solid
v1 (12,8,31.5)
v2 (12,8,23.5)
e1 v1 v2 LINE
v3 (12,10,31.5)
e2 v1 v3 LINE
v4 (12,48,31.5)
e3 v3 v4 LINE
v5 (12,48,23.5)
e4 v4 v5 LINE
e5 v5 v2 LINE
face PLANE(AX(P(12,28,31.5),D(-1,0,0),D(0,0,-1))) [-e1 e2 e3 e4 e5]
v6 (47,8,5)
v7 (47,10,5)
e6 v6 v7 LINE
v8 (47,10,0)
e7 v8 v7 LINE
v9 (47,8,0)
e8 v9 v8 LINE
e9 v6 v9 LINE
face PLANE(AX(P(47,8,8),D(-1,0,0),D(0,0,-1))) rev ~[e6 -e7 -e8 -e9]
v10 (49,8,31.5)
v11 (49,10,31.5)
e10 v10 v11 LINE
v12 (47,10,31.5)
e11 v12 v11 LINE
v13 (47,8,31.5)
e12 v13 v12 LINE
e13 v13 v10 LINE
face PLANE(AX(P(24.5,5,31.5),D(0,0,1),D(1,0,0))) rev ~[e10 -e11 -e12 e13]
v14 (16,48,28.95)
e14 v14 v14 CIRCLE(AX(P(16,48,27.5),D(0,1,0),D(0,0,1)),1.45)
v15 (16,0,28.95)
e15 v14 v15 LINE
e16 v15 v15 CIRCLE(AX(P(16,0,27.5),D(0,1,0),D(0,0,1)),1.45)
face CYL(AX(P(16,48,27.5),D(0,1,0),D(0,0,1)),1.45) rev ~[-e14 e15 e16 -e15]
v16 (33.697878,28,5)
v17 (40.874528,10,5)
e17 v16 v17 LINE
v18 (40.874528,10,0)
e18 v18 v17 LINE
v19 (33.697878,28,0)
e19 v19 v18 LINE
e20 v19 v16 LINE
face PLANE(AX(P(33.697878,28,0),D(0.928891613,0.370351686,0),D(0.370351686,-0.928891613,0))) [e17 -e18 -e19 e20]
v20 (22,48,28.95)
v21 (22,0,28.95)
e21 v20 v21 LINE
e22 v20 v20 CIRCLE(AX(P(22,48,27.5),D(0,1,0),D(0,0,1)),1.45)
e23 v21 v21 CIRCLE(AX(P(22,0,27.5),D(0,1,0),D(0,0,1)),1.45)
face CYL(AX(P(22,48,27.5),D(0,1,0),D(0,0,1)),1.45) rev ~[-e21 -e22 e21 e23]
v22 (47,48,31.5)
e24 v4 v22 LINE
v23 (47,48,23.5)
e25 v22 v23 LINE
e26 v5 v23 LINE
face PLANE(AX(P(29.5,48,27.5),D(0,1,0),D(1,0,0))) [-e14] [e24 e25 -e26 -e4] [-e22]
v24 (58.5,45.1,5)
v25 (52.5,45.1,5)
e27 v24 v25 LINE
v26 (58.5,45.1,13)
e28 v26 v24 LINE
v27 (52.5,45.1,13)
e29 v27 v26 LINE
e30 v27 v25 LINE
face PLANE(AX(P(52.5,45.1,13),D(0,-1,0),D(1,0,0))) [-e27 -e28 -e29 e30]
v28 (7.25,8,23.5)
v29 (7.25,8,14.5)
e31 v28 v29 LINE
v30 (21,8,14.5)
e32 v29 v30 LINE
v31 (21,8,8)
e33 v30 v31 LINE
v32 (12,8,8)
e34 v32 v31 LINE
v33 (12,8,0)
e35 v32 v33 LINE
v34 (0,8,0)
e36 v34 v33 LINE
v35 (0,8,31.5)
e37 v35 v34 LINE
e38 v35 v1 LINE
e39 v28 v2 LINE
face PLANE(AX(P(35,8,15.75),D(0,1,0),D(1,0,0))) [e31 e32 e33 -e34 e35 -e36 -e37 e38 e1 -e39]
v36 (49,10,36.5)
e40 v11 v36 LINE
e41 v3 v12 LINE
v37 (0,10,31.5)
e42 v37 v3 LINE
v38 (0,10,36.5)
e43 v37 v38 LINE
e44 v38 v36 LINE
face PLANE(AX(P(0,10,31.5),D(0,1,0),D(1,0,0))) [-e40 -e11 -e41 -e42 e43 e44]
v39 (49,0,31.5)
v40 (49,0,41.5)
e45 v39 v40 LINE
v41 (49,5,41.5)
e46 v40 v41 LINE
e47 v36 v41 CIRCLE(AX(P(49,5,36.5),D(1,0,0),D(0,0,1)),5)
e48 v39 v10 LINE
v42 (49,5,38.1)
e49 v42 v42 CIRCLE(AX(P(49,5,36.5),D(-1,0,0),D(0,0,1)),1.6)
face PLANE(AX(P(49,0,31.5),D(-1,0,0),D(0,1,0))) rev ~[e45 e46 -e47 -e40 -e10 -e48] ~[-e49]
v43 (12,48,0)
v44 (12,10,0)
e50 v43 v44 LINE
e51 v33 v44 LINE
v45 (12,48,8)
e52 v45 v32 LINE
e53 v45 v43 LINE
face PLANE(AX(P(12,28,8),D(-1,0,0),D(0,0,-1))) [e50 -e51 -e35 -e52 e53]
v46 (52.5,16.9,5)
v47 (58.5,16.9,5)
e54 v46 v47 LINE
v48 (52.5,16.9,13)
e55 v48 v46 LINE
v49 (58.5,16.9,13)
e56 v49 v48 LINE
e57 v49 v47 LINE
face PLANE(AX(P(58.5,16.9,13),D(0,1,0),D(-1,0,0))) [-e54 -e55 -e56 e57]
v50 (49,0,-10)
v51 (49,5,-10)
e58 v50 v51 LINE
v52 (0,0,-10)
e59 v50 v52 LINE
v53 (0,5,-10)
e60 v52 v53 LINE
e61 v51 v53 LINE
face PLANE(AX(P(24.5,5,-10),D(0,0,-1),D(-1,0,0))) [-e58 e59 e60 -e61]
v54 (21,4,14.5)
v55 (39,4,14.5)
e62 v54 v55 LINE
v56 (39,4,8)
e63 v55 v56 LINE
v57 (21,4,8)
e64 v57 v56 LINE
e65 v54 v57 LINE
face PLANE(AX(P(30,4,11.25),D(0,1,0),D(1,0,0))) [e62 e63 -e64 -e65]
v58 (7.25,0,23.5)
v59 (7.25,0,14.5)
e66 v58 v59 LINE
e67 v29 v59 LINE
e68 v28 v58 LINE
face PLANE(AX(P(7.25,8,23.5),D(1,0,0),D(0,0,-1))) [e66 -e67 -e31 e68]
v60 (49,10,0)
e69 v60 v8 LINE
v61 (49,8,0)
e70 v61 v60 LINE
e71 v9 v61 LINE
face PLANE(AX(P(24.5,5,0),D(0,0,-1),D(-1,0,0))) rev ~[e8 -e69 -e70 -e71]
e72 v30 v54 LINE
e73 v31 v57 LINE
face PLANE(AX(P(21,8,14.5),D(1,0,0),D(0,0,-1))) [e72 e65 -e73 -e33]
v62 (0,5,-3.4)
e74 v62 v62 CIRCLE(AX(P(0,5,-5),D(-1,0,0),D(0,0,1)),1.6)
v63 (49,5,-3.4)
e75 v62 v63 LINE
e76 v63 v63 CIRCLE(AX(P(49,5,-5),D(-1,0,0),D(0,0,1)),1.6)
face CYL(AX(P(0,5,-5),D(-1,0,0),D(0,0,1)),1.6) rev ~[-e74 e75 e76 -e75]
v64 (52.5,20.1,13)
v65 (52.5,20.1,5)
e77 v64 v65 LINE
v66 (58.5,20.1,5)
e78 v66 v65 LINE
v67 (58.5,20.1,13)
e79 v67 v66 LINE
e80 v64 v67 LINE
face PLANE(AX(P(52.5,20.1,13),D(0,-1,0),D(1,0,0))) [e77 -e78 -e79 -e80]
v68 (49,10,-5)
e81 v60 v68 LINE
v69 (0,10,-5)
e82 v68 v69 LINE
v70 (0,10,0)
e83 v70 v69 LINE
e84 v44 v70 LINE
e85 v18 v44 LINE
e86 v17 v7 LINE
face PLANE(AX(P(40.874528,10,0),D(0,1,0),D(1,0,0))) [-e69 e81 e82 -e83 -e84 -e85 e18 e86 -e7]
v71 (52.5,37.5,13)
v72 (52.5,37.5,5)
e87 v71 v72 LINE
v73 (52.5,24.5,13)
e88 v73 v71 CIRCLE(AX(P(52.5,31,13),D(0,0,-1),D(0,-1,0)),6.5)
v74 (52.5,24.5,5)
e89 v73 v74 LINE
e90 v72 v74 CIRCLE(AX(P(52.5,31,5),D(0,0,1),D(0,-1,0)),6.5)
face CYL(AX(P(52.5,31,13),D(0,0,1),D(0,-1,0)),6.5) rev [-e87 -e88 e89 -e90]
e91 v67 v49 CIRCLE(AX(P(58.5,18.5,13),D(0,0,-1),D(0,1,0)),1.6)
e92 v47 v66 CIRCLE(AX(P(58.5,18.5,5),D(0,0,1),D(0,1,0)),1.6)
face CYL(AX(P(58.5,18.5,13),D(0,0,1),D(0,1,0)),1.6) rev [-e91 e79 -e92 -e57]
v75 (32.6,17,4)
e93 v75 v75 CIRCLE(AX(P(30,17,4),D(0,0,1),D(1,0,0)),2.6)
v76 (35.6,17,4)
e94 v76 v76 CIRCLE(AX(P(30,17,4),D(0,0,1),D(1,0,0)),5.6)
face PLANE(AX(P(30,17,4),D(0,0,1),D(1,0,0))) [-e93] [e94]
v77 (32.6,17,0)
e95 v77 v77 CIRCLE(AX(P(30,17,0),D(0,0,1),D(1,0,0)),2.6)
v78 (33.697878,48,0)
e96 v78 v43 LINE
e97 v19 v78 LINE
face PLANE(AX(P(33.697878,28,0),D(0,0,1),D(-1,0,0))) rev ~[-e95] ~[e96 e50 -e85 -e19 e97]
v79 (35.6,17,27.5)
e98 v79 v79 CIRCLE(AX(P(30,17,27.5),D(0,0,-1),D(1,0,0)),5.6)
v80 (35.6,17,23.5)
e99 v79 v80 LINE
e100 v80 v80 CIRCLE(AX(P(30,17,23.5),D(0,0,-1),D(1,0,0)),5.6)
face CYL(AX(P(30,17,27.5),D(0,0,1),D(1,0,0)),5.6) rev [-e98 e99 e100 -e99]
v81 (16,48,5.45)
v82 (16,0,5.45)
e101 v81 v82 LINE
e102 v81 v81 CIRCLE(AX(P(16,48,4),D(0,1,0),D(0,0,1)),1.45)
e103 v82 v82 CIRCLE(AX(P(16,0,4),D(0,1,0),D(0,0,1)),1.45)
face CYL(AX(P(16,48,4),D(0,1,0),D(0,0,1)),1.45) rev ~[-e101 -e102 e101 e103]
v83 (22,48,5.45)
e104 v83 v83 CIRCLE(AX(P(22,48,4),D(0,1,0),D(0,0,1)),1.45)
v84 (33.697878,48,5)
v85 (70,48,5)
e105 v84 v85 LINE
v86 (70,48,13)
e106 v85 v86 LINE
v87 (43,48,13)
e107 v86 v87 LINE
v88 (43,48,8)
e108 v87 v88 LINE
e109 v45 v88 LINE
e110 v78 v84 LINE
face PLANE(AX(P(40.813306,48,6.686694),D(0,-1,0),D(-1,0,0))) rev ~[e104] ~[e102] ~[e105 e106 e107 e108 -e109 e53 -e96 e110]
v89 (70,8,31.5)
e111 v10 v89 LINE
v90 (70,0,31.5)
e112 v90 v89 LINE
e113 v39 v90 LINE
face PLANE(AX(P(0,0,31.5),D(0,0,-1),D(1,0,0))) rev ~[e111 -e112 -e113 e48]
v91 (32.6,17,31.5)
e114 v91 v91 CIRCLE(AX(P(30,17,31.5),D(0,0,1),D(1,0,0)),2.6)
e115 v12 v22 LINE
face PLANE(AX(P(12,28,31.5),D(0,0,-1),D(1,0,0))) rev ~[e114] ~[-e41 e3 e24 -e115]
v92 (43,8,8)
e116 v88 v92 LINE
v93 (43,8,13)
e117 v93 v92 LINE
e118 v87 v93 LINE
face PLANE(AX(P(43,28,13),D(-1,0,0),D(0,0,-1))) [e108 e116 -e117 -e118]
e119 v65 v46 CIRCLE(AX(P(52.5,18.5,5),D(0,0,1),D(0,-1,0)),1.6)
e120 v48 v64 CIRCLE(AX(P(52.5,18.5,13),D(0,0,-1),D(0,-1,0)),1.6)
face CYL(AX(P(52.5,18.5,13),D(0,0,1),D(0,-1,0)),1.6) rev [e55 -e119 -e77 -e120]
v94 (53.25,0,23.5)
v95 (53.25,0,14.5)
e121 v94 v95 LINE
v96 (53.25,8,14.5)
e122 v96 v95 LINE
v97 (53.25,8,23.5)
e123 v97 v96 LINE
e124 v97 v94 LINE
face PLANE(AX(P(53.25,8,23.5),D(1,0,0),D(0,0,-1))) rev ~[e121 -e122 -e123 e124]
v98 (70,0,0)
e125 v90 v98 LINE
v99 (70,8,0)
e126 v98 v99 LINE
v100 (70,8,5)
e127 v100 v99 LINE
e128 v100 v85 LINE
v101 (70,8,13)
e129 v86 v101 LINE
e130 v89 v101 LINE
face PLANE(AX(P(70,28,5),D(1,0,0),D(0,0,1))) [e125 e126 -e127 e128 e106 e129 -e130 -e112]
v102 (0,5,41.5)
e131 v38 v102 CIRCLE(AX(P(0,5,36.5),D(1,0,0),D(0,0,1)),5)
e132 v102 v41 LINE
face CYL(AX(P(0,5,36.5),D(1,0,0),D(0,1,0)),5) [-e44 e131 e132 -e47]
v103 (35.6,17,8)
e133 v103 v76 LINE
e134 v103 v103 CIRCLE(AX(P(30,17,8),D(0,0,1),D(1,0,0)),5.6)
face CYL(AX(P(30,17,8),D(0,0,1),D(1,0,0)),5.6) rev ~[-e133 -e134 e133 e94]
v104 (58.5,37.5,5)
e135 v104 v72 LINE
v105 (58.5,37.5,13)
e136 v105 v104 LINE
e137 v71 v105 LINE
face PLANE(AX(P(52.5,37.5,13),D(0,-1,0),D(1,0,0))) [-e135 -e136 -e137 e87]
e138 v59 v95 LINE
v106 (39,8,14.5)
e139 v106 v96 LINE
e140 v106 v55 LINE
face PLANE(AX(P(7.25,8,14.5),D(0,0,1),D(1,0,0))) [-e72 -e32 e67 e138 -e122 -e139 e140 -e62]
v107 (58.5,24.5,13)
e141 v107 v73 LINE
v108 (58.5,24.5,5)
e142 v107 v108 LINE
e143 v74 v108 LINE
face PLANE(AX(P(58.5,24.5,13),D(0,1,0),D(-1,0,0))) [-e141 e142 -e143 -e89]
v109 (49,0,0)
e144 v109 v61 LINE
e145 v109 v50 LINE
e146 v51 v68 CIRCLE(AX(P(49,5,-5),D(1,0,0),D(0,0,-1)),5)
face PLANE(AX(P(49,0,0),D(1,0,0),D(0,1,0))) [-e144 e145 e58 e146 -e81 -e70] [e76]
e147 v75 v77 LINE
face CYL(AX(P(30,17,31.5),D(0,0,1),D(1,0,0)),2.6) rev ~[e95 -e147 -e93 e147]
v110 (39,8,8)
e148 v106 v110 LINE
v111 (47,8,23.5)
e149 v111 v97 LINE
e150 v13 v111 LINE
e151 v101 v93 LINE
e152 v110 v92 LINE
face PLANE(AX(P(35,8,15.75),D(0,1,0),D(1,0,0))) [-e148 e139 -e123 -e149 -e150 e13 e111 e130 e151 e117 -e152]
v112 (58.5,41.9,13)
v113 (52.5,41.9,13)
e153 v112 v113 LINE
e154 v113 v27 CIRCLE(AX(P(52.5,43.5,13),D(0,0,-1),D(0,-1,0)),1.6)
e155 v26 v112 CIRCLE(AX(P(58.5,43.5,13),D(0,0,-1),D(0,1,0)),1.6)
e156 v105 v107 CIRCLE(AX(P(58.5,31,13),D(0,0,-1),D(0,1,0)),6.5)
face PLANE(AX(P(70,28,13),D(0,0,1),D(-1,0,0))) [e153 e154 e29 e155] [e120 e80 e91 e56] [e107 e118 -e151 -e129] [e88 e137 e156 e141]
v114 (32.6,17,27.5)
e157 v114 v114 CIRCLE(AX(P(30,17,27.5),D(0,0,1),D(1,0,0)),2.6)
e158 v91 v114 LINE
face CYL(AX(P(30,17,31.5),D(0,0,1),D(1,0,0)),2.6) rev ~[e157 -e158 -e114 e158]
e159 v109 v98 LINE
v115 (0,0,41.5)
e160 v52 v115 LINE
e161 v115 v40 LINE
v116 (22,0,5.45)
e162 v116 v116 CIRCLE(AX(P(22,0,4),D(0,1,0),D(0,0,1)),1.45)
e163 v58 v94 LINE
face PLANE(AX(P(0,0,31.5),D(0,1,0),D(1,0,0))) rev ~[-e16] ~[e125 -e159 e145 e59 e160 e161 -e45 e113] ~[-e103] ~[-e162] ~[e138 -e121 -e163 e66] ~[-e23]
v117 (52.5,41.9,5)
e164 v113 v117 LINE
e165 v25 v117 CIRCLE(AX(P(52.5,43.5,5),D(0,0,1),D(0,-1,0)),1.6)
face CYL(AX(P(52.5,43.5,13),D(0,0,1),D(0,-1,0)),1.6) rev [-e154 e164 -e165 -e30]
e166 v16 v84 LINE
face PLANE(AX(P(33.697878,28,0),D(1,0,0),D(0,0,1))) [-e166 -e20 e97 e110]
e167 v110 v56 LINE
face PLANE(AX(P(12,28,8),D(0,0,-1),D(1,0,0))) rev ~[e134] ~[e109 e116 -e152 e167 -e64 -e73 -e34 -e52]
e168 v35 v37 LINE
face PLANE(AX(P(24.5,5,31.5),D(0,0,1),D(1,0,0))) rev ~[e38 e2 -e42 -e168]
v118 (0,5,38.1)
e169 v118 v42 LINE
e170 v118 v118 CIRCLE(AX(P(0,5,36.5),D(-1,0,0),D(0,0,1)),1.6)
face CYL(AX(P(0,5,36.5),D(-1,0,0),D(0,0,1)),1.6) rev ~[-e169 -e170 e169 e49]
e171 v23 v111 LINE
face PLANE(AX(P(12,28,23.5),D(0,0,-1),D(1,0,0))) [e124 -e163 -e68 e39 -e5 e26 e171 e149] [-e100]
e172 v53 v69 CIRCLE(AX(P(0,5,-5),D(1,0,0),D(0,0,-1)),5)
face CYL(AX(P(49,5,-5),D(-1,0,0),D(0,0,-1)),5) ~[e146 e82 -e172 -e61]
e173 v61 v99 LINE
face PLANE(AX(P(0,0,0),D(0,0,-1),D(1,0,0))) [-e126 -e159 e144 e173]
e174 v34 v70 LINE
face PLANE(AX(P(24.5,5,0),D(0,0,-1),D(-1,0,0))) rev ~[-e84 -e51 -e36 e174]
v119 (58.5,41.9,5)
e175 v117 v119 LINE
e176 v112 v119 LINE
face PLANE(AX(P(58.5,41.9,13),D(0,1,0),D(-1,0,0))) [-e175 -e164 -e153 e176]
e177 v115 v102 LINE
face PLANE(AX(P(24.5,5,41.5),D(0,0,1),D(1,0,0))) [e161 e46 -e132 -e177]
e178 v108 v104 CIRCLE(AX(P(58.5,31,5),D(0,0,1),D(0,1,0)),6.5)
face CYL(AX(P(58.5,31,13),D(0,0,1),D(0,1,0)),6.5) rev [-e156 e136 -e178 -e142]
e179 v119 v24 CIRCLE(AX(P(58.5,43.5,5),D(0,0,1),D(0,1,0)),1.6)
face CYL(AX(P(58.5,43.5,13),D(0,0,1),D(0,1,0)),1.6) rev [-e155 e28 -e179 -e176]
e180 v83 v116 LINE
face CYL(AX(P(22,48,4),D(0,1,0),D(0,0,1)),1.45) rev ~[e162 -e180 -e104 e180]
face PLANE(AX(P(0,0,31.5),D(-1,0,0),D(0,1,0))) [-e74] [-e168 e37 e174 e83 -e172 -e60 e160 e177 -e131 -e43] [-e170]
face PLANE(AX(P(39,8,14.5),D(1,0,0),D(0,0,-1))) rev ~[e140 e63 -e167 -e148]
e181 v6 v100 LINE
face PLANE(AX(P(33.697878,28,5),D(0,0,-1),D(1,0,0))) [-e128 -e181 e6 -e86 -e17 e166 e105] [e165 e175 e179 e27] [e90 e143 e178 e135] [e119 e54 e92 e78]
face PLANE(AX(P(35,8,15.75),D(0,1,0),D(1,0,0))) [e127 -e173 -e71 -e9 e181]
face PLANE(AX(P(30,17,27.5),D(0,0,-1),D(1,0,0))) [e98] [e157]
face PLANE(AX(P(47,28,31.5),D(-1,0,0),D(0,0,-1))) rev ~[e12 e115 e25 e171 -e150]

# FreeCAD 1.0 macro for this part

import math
import FreeCAD as App
import Part
import Sketcher
from FreeCAD import Vector
Q = App.Units.Quantity


def edges_at(feature, points):
    """Names of the edges that pass closest to the given points."""
    edges = feature.Shape.Edges
    near = lambda p: min(range(len(edges)), key=lambda i: edges[i].distToShape(Part.Vertex(*p))[0])
    return sorted({f"Edge{near(p) + 1}" for p in points})

doc = App.newDocument("Part")
params = doc.addObject("Spreadsheet::Sheet", "Params")
for row, (alias, value) in enumerate([
    ("sketch1_width", "70 mm"),
    ("sketch1_height", "31.5 mm"),
    ("pad1_length", "8 mm"),
    ("sketch2_width", "35 mm"),
    ("sketch2_height", "8 mm"),
    ("pad2_length", "20 mm"),
    ("sketch3_diameter", "5.2 mm"),
    ("sketch4_width", "49 mm"),
    ("sketch4_height", "10 mm"),
    ("pad3_length", "10 mm"),
    ("sketch5_diameter", "3.2 mm"),
    ("sketch6_width", "46 mm"),
    ("sketch6_height", "9 mm"),
    ("sketch7_diameter", "11.2 mm"),
    ("pocket4_length", "4 mm"),
    ("sketch8_diameter", "11.2 mm"),
    ("pocket5_length", "4 mm"),
    ("sketch9_width", "18 mm"),
    ("sketch9_height", "6.5 mm"),
    ("pocket6_length", "4 mm"),
    ("sketch10_width", "27 mm"),
    ("sketch10_width2", "23 mm"),
    ("sketch10_height", "8 mm"),
    ("sketch10_height2", "3 mm"),
    ("pad4_length", "20 mm"),
    ("sketch11_height", "18 mm"),
    ("pocket7_length", "5 mm"),
    ("sketch12_width", "31 mm"),
    ("sketch12_width2", "27 mm"),
    ("sketch12_height", "8 mm"),
    ("sketch12_height2", "5 mm"),
    ("pad5_length", "20 mm"),
    ("sketch13_radius", "6.5 mm"),
    ("sketch13_radius2", "1.6 mm"),
    ("sketch13_width", "6 mm"),
    ("sketch14_width", "49 mm"),
    ("sketch14_height", "10 mm"),
    ("pad6_length", "10 mm"),
    ("sketch15_diameter", "3.2 mm"),
    ("sketch16_width", "35 mm"),
    ("sketch16_height", "8 mm"),
    ("pad7_length", "20 mm"),
    ("sketch17_diameter", "2.9 mm"),
    ("fillet_radius", "5 mm"),
], start=1):
    params.set(f"A{row}", alias)
    params.set(f"B{row}", "=" + value)
    params.setAlias(f"B{row}", alias)

body = doc.addObject("PartDesign::Body", "Body")

# Sketch on XZ plane
sketch1 = body.newObject("Sketcher::SketchObject", "Sketch")
sketch1.AttachmentSupport = (doc.getObject("XZ_Plane"), [""])
sketch1.MapMode = "FlatFace"
sketch1.addGeometry(Part.LineSegment(Vector(0, 0, 0), Vector(0, 32, 0)), False)
sketch1.addGeometry(Part.LineSegment(Vector(0, 32, 0), Vector(70, 32, 0)), False)
sketch1.addGeometry(Part.LineSegment(Vector(70, 32, 0), Vector(70, 0, 0)), False)
sketch1.addGeometry(Part.LineSegment(Vector(70, 0, 0), Vector(0, 0, 0)), False)
sketch1.addConstraint(Sketcher.Constraint("Coincident", 0, 2, 1, 1))
sketch1.addConstraint(Sketcher.Constraint("Coincident", 1, 2, 2, 1))
sketch1.addConstraint(Sketcher.Constraint("Coincident", 2, 2, 3, 1))
sketch1.addConstraint(Sketcher.Constraint("Coincident", 3, 2, 0, 1))
sketch1.addConstraint(Sketcher.Constraint("Vertical", 0))
sketch1.addConstraint(Sketcher.Constraint("Horizontal", 1))
sketch1.addConstraint(Sketcher.Constraint("Vertical", 2))
sketch1.addConstraint(Sketcher.Constraint("Horizontal", 3))
sketch1.addConstraint(Sketcher.Constraint("Coincident", 3, 2, -1, 1))
sketch1.addConstraint(Sketcher.Constraint("DistanceX", 1, 1, 1, 2, Q("70 mm")))
sketch1.addConstraint(Sketcher.Constraint("DistanceY", 0, 1, 0, 2, Q("31.5 mm")))
sketch1.setExpression("Constraints[9]", "Params.sketch1_width")
sketch1.setExpression("Constraints[10]", "Params.sketch1_height")
pad1 = body.newObject("PartDesign::Pad", "Pad")
pad1.Profile = sketch1
pad1.setExpression("Length", "Params.pad1_length")
pad1.Reversed = True

# Sketch on XZ plane
sketch2 = body.newObject("Sketcher::SketchObject", "Sketch001")
sketch2.AttachmentSupport = (doc.getObject("XZ_Plane"), [""])
sketch2.MapMode = "FlatFace"
sketch2.AttachmentOffset = App.Placement(Vector(0, 0, -8), App.Rotation())
sketch2.addGeometry(Part.LineSegment(Vector(12, 24, 0), Vector(12, 32, 0)), False)
sketch2.addGeometry(Part.LineSegment(Vector(12, 32, 0), Vector(47, 32, 0)), False)
sketch2.addGeometry(Part.LineSegment(Vector(47, 32, 0), Vector(47, 24, 0)), False)
sketch2.addGeometry(Part.LineSegment(Vector(47, 24, 0), Vector(12, 24, 0)), False)
sketch2.addGeometry(Part.LineSegment(Vector(12, 0, 0), Vector(12, 8, 0)), False)
sketch2.addGeometry(Part.LineSegment(Vector(12, 8, 0), Vector(47, 8, 0)), False)
sketch2.addGeometry(Part.LineSegment(Vector(47, 8, 0), Vector(47, 0, 0)), False)
sketch2.addGeometry(Part.LineSegment(Vector(47, 0, 0), Vector(12, 0, 0)), False)
sketch2.addConstraint(Sketcher.Constraint("Coincident", 0, 2, 1, 1))
sketch2.addConstraint(Sketcher.Constraint("Coincident", 1, 2, 2, 1))
sketch2.addConstraint(Sketcher.Constraint("Coincident", 2, 2, 3, 1))
sketch2.addConstraint(Sketcher.Constraint("Coincident", 3, 2, 0, 1))
sketch2.addConstraint(Sketcher.Constraint("Coincident", 4, 2, 5, 1))
sketch2.addConstraint(Sketcher.Constraint("Coincident", 5, 2, 6, 1))
sketch2.addConstraint(Sketcher.Constraint("Coincident", 6, 2, 7, 1))
sketch2.addConstraint(Sketcher.Constraint("Coincident", 7, 2, 4, 1))
sketch2.addConstraint(Sketcher.Constraint("Vertical", 0))
sketch2.addConstraint(Sketcher.Constraint("Horizontal", 1))
sketch2.addConstraint(Sketcher.Constraint("Vertical", 2))
sketch2.addConstraint(Sketcher.Constraint("Horizontal", 3))
sketch2.addConstraint(Sketcher.Constraint("Vertical", 4))
sketch2.addConstraint(Sketcher.Constraint("Horizontal", 5))
sketch2.addConstraint(Sketcher.Constraint("Vertical", 6))
sketch2.addConstraint(Sketcher.Constraint("Horizontal", 7))
sketch2.addConstraint(Sketcher.Constraint("PointOnObject", 6, 2, -1))
sketch2.addConstraint(Sketcher.Constraint("Vertical", 3, 2, 4, 2))
sketch2.addConstraint(Sketcher.Constraint("Vertical", 2, 2, 5, 2))
sketch2.addConstraint(Sketcher.Constraint("Equal", 2, 4))
sketch2.addConstraint(Sketcher.Constraint("DistanceX", 1, 1, 1, 2, Q("35 mm")))
sketch2.addConstraint(Sketcher.Constraint("DistanceY", 0, 1, 0, 2, Q("8 mm")))
sketch2.addConstraint(Sketcher.Constraint("DistanceX", -1, 1, 0, 2, Q("12 mm")))
sketch2.addConstraint(Sketcher.Constraint("DistanceY", -1, 1, 0, 2, Q("31.5 mm")))
sketch2.setExpression("Constraints[20]", "Params.sketch2_width")
sketch2.setExpression("Constraints[21]", "Params.sketch2_height")
pad2 = body.newObject("PartDesign::Pad", "Pad001")
pad2.Profile = sketch2
pad2.setExpression("Length", "Params.pad2_length")
pad2.Reversed = True

# Sketch on XY plane
sketch3 = body.newObject("Sketcher::SketchObject", "Sketch002")
sketch3.AttachmentSupport = (doc.getObject("XY_Plane"), [""])
sketch3.MapMode = "FlatFace"
sketch3.AttachmentOffset = App.Placement(Vector(0, 0, 31.5), App.Rotation())
sketch3.addGeometry(Part.Circle(Vector(30, 17, 0), Vector(0, 0, 1), 2.6), False)
sketch3.addConstraint(Sketcher.Constraint("Diameter", 0, Q("5.2 mm")))
sketch3.addConstraint(Sketcher.Constraint("DistanceX", -1, 1, 0, 3, Q("30 mm")))
sketch3.addConstraint(Sketcher.Constraint("DistanceY", -1, 1, 0, 3, Q("17 mm")))
sketch3.setExpression("Constraints[0]", "Params.sketch3_diameter")
pocket1 = body.newObject("PartDesign::Pocket", "Pocket")
pocket1.Profile = sketch3
pocket1.Type = "ThroughAll"

# Sketch on XY plane
sketch4 = body.newObject("Sketcher::SketchObject", "Sketch003")
sketch4.AttachmentSupport = (doc.getObject("XY_Plane"), [""])
sketch4.MapMode = "FlatFace"
sketch4.addGeometry(Part.LineSegment(Vector(49, 10, 0), Vector(49, 0, 0)), False)
sketch4.addGeometry(Part.LineSegment(Vector(49, 0, 0), Vector(0, 0, 0)), False)
sketch4.addGeometry(Part.LineSegment(Vector(0, 0, 0), Vector(0, 10, 0)), False)
sketch4.addGeometry(Part.LineSegment(Vector(0, 10, 0), Vector(49, 10, 0)), False)
sketch4.addConstraint(Sketcher.Constraint("Coincident", 0, 2, 1, 1))
sketch4.addConstraint(Sketcher.Constraint("Coincident", 1, 2, 2, 1))
sketch4.addConstraint(Sketcher.Constraint("Coincident", 2, 2, 3, 1))
sketch4.addConstraint(Sketcher.Constraint("Coincident", 3, 2, 0, 1))
sketch4.addConstraint(Sketcher.Constraint("Vertical", 0))
sketch4.addConstraint(Sketcher.Constraint("Horizontal", 1))
sketch4.addConstraint(Sketcher.Constraint("Vertical", 2))
sketch4.addConstraint(Sketcher.Constraint("Horizontal", 3))
sketch4.addConstraint(Sketcher.Constraint("Coincident", 1, 2, -1, 1))
sketch4.addConstraint(Sketcher.Constraint("DistanceX", 1, 2, 1, 1, Q("49 mm")))
sketch4.addConstraint(Sketcher.Constraint("DistanceY", 0, 2, 0, 1, Q("10 mm")))
sketch4.setExpression("Constraints[9]", "Params.sketch4_width")
sketch4.setExpression("Constraints[10]", "Params.sketch4_height")
pad3 = body.newObject("PartDesign::Pad", "Pad002")
pad3.Profile = sketch4
pad3.setExpression("Length", "Params.pad3_length")
pad3.Reversed = True

# Sketch on YZ plane
sketch5 = body.newObject("Sketcher::SketchObject", "Sketch004")
sketch5.AttachmentSupport = (doc.getObject("YZ_Plane"), [""])
sketch5.MapMode = "FlatFace"
sketch5.addGeometry(Part.Circle(Vector(5, -5, 0), Vector(0, 0, 1), 1.6), False)
sketch5.addConstraint(Sketcher.Constraint("Diameter", 0, Q("3.2 mm")))
sketch5.addConstraint(Sketcher.Constraint("DistanceX", -1, 1, 0, 3, Q("5 mm")))
sketch5.addConstraint(Sketcher.Constraint("DistanceY", 0, 3, -1, 1, Q("5 mm")))
sketch5.setExpression("Constraints[0]", "Params.sketch5_diameter")
pocket2 = body.newObject("PartDesign::Pocket", "Pocket001")
pocket2.Profile = sketch5
pocket2.Type = "ThroughAll"
pocket2.Reversed = True

# Sketch on XZ plane
sketch6 = body.newObject("Sketcher::SketchObject", "Sketch005")
sketch6.AttachmentSupport = (doc.getObject("XZ_Plane"), [""])
sketch6.MapMode = "FlatFace"
sketch6.AttachmentOffset = App.Placement(Vector(0, 0, -8), App.Rotation())
sketch6.addGeometry(Part.LineSegment(Vector(7, 14, 0), Vector(7, 24, 0)), False)
sketch6.addGeometry(Part.LineSegment(Vector(7, 24, 0), Vector(53, 24, 0)), False)
sketch6.addGeometry(Part.LineSegment(Vector(53, 24, 0), Vector(53, 14, 0)), False)
sketch6.addGeometry(Part.LineSegment(Vector(53, 14, 0), Vector(7, 14, 0)), False)
sketch6.addConstraint(Sketcher.Constraint("Coincident", 0, 2, 1, 1))
sketch6.addConstraint(Sketcher.Constraint("Coincident", 1, 2, 2, 1))
sketch6.addConstraint(Sketcher.Constraint("Coincident", 2, 2, 3, 1))
sketch6.addConstraint(Sketcher.Constraint("Coincident", 3, 2, 0, 1))
sketch6.addConstraint(Sketcher.Constraint("Vertical", 0))
sketch6.addConstraint(Sketcher.Constraint("Horizontal", 1))
sketch6.addConstraint(Sketcher.Constraint("Vertical", 2))
sketch6.addConstraint(Sketcher.Constraint("Horizontal", 3))
sketch6.addConstraint(Sketcher.Constraint("DistanceX", 1, 1, 1, 2, Q("46 mm")))
sketch6.addConstraint(Sketcher.Constraint("DistanceY", 0, 1, 0, 2, Q("9 mm")))
sketch6.addConstraint(Sketcher.Constraint("DistanceY", -1, 1, 0, 2, Q("23.5 mm")))
sketch6.addConstraint(Sketcher.Constraint("DistanceX", -1, 1, 0, 2, Q("7.25 mm")))
sketch6.setExpression("Constraints[8]", "Params.sketch6_width")
sketch6.setExpression("Constraints[9]", "Params.sketch6_height")
pocket3 = body.newObject("PartDesign::Pocket", "Pocket002")
pocket3.Profile = sketch6
pocket3.Type = "ThroughAll"
pocket3.Reversed = True

# Sketch on XY plane
sketch7 = body.newObject("Sketcher::SketchObject", "Sketch006")
sketch7.AttachmentSupport = (doc.getObject("XY_Plane"), [""])
sketch7.MapMode = "FlatFace"
sketch7.AttachmentOffset = App.Placement(Vector(0, 0, 8), App.Rotation())
sketch7.addGeometry(Part.Circle(Vector(30, 17, 0), Vector(0, 0, 1), 6), False)
sketch7.addConstraint(Sketcher.Constraint("Diameter", 0, Q("11.2 mm")))
sketch7.addConstraint(Sketcher.Constraint("DistanceX", -1, 1, 0, 3, Q("30 mm")))
sketch7.addConstraint(Sketcher.Constraint("DistanceY", -1, 1, 0, 3, Q("17 mm")))
sketch7.setExpression("Constraints[0]", "Params.sketch7_diameter")
pocket4 = body.newObject("PartDesign::Pocket", "Pocket003")
pocket4.Profile = sketch7
pocket4.setExpression("Length", "Params.pocket4_length")

# Sketch on XY plane
sketch8 = body.newObject("Sketcher::SketchObject", "Sketch007")
sketch8.AttachmentSupport = (doc.getObject("XY_Plane"), [""])
sketch8.MapMode = "FlatFace"
sketch8.AttachmentOffset = App.Placement(Vector(0, 0, 27.5), App.Rotation())
sketch8.addGeometry(Part.Circle(Vector(30, 17, 0), Vector(0, 0, 1), 6), False)
sketch8.addConstraint(Sketcher.Constraint("Diameter", 0, Q("11.2 mm")))
sketch8.addConstraint(Sketcher.Constraint("DistanceX", -1, 1, 0, 3, Q("30 mm")))
sketch8.addConstraint(Sketcher.Constraint("DistanceY", -1, 1, 0, 3, Q("17 mm")))
sketch8.setExpression("Constraints[0]", "Params.sketch8_diameter")
pocket5 = body.newObject("PartDesign::Pocket", "Pocket004")
pocket5.Profile = sketch8
pocket5.setExpression("Length", "Params.pocket5_length")

# Sketch on XZ plane
sketch9 = body.newObject("Sketcher::SketchObject", "Sketch008")
sketch9.AttachmentSupport = (doc.getObject("XZ_Plane"), [""])
sketch9.MapMode = "FlatFace"
sketch9.AttachmentOffset = App.Placement(Vector(0, 0, -8), App.Rotation())
sketch9.addGeometry(Part.LineSegment(Vector(21, 8, 0), Vector(21, 14, 0)), False)
sketch9.addGeometry(Part.LineSegment(Vector(21, 14, 0), Vector(39, 14, 0)), False)
sketch9.addGeometry(Part.LineSegment(Vector(39, 14, 0), Vector(39, 8, 0)), False)
sketch9.addGeometry(Part.LineSegment(Vector(39, 8, 0), Vector(21, 8, 0)), False)
sketch9.addConstraint(Sketcher.Constraint("Coincident", 0, 2, 1, 1))
sketch9.addConstraint(Sketcher.Constraint("Coincident", 1, 2, 2, 1))
sketch9.addConstraint(Sketcher.Constraint("Coincident", 2, 2, 3, 1))
sketch9.addConstraint(Sketcher.Constraint("Coincident", 3, 2, 0, 1))
sketch9.addConstraint(Sketcher.Constraint("Vertical", 0))
sketch9.addConstraint(Sketcher.Constraint("Horizontal", 1))
sketch9.addConstraint(Sketcher.Constraint("Vertical", 2))
sketch9.addConstraint(Sketcher.Constraint("Horizontal", 3))
sketch9.addConstraint(Sketcher.Constraint("DistanceX", 1, 1, 1, 2, Q("18 mm")))
sketch9.addConstraint(Sketcher.Constraint("DistanceY", 0, 1, 0, 2, Q("6.5 mm")))
sketch9.addConstraint(Sketcher.Constraint("DistanceX", -1, 1, 0, 2, Q("21 mm")))
sketch9.addConstraint(Sketcher.Constraint("DistanceY", -1, 1, 2, 2, Q("8 mm")))
sketch9.setExpression("Constraints[8]", "Params.sketch9_width")
sketch9.setExpression("Constraints[9]", "Params.sketch9_height")
pocket6 = body.newObject("PartDesign::Pocket", "Pocket005")
pocket6.Profile = sketch9
pocket6.setExpression("Length", "Params.pocket6_length")
pocket6.Reversed = True

# Sketch on XZ plane
sketch10 = body.newObject("Sketcher::SketchObject", "Sketch009")
sketch10.AttachmentSupport = (doc.getObject("XZ_Plane"), [""])
sketch10.MapMode = "FlatFace"
sketch10.AttachmentOffset = App.Placement(Vector(0, 0, -8), App.Rotation())
sketch10.addGeometry(Part.LineSegment(Vector(43, 13, 0), Vector(70, 13, 0)), False)
sketch10.addGeometry(Part.LineSegment(Vector(70, 13, 0), Vector(70, 5, 0)), False)
sketch10.addGeometry(Part.LineSegment(Vector(70, 5, 0), Vector(47, 5, 0)), False)
sketch10.addGeometry(Part.LineSegment(Vector(47, 5, 0), Vector(47, 8, 0)), False)
sketch10.addGeometry(Part.LineSegment(Vector(47, 8, 0), Vector(43, 8, 0)), False)
sketch10.addGeometry(Part.LineSegment(Vector(43, 8, 0), Vector(43, 13, 0)), False)
sketch10.addConstraint(Sketcher.Constraint("Coincident", 0, 2, 1, 1))
sketch10.addConstraint(Sketcher.Constraint("Coincident", 1, 2, 2, 1))
sketch10.addConstraint(Sketcher.Constraint("Coincident", 2, 2, 3, 1))
sketch10.addConstraint(Sketcher.Constraint("Coincident", 3, 2, 4, 1))
sketch10.addConstraint(Sketcher.Constraint("Coincident", 4, 2, 5, 1))
sketch10.addConstraint(Sketcher.Constraint("Coincident", 5, 2, 0, 1))
sketch10.addConstraint(Sketcher.Constraint("Horizontal", 0))
sketch10.addConstraint(Sketcher.Constraint("Vertical", 1))
sketch10.addConstraint(Sketcher.Constraint("Horizontal", 2))
sketch10.addConstraint(Sketcher.Constraint("Vertical", 3))
sketch10.addConstraint(Sketcher.Constraint("Horizontal", 4))
sketch10.addConstraint(Sketcher.Constraint("Vertical", 5))
sketch10.addConstraint(Sketcher.Constraint("DistanceX", 0, 1, 0, 2, Q("27 mm")))
sketch10.addConstraint(Sketcher.Constraint("DistanceX", 2, 2, 2, 1, Q("23 mm")))
sketch10.addConstraint(Sketcher.Constraint("DistanceY", 1, 2, 1, 1, Q("8 mm")))
sketch10.addConstraint(Sketcher.Constraint("DistanceY", 3, 1, 3, 2, Q("3 mm")))
sketch10.addConstraint(Sketcher.Constraint("DistanceX", -1, 1, 0, 2, Q("70 mm")))
sketch10.addConstraint(Sketcher.Constraint("DistanceY", -1, 1, 0, 2, Q("13 mm")))
sketch10.setExpression("Constraints[12]", "Params.sketch10_width")
sketch10.setExpression("Constraints[13]", "Params.sketch10_width2")
sketch10.setExpression("Constraints[14]", "Params.sketch10_height")
sketch10.setExpression("Constraints[15]", "Params.sketch10_height2")
pad4 = body.newObject("PartDesign::Pad", "Pad003")
pad4.Profile = sketch10
pad4.setExpression("Length", "Params.pad4_length")
pad4.Reversed = True

# Sketch on XY plane
sketch11 = body.newObject("Sketcher::SketchObject", "Sketch010")
sketch11.AttachmentSupport = (doc.getObject("XY_Plane"), [""])
sketch11.MapMode = "FlatFace"
sketch11.addGeometry(Part.LineSegment(Vector(41, 10, 0), Vector(34, 28, 0)), False)
sketch11.addGeometry(Part.LineSegment(Vector(34, 28, 0), Vector(47, 28, 0)), False)
sketch11.addGeometry(Part.LineSegment(Vector(47, 28, 0), Vector(47, 10, 0)), False)
sketch11.addGeometry(Part.LineSegment(Vector(47, 10, 0), Vector(41, 10, 0)), False)
sketch11.addConstraint(Sketcher.Constraint("Coincident", 0, 2, 1, 1))
sketch11.addConstraint(Sketcher.Constraint("Coincident", 1, 2, 2, 1))
sketch11.addConstraint(Sketcher.Constraint("Coincident", 2, 2, 3, 1))
sketch11.addConstraint(Sketcher.Constraint("Coincident", 3, 2, 0, 1))
sketch11.addConstraint(Sketcher.Constraint("Horizontal", 1))
sketch11.addConstraint(Sketcher.Constraint("Vertical", 2))
sketch11.addConstraint(Sketcher.Constraint("Horizontal", 3))
sketch11.addConstraint(Sketcher.Constraint("DistanceY", 2, 2, 2, 1, Q("18 mm")))
sketch11.addConstraint(Sketcher.Constraint("DistanceY", -1, 1, 0, 2, Q("28 mm")))
sketch11.addConstraint(Sketcher.Constraint("DistanceX", -1, 1, 1, 2, Q("47 mm")))
sketch11.addConstraint(Sketcher.Constraint("DistanceX", 3, 2, 3, 1, Q("6.125472 mm")))
sketch11.addConstraint(Sketcher.Constraint("DistanceX", 1, 1, 1, 2, Q("13.302122 mm")))
sketch11.setExpression("Constraints[7]", "Params.sketch11_height")
pocket7 = body.newObject("PartDesign::Pocket", "Pocket006")
pocket7.Profile = sketch11
pocket7.setExpression("Length", "Params.pocket7_length")
pocket7.Reversed = True

# Sketch on XZ plane
sketch12 = body.newObject("Sketcher::SketchObject", "Sketch011")
sketch12.AttachmentSupport = (doc.getObject("XZ_Plane"), [""])
sketch12.MapMode = "FlatFace"
sketch12.AttachmentOffset = App.Placement(Vector(0, 0, -28), App.Rotation())
sketch12.addGeometry(Part.LineSegment(Vector(70, 13, 0), Vector(70, 5, 0)), False)
sketch12.addGeometry(Part.LineSegment(Vector(70, 5, 0), Vector(34, 5, 0)), False)
sketch12.addGeometry(Part.LineSegment(Vector(34, 5, 0), Vector(34, 0, 0)), False)
sketch12.addGeometry(Part.LineSegment(Vector(34, 0, 0), Vector(12, 0, 0)), False)
sketch12.addGeometry(Part.LineSegment(Vector(12, 0, 0), Vector(12, 8, 0)), False)
sketch12.addGeometry(Part.LineSegment(Vector(12, 8, 0), Vector(43, 8, 0)), False)
sketch12.addGeometry(Part.LineSegment(Vector(43, 8, 0), Vector(43, 13, 0)), False)
sketch12.addGeometry(Part.LineSegment(Vector(43, 13, 0), Vector(70, 13, 0)), False)
sketch12.addConstraint(Sketcher.Constraint("Coincident", 0, 2, 1, 1))
sketch12.addConstraint(Sketcher.Constraint("Coincident", 1, 2, 2, 1))
sketch12.addConstraint(Sketcher.Constraint("Coincident", 2, 2, 3, 1))
sketch12.addConstraint(Sketcher.Constraint("Coincident", 3, 2, 4, 1))
sketch12.addConstraint(Sketcher.Constraint("Coincident", 4, 2, 5, 1))
sketch12.addConstraint(Sketcher.Constraint("Coincident", 5, 2, 6, 1))
sketch12.addConstraint(Sketcher.Constraint("Coincident", 6, 2, 7, 1))
sketch12.addConstraint(Sketcher.Constraint("Coincident", 7, 2, 0, 1))
sketch12.addConstraint(Sketcher.Constraint("Vertical", 0))
sketch12.addConstraint(Sketcher.Constraint("Horizontal", 1))
sketch12.addConstraint(Sketcher.Constraint("Vertical", 2))
sketch12.addConstraint(Sketcher.Constraint("Horizontal", 3))
sketch12.addConstraint(Sketcher.Constraint("Vertical", 4))
sketch12.addConstraint(Sketcher.Constraint("Horizontal", 5))
sketch12.addConstraint(Sketcher.Constraint("Vertical", 6))
sketch12.addConstraint(Sketcher.Constraint("Horizontal", 7))
sketch12.addConstraint(Sketcher.Constraint("PointOnObject", 2, 2, -1))
sketch12.addConstraint(Sketcher.Constraint("Equal", 0, 4))
sketch12.addConstraint(Sketcher.Constraint("DistanceX", 5, 1, 5, 2, Q("31 mm")))
sketch12.addConstraint(Sketcher.Constraint("DistanceX", 7, 1, 7, 2, Q("27 mm")))
sketch12.addConstraint(Sketcher.Constraint("DistanceY", 0, 2, 0, 1, Q("8 mm")))
sketch12.addConstraint(Sketcher.Constraint("DistanceY", 2, 2, 2, 1, Q("5 mm")))
sketch12.addConstraint(Sketcher.Constraint("DistanceX", -1, 1, 0, 2, Q("70 mm")))
sketch12.addConstraint(Sketcher.Constraint("DistanceX", 1, 2, 1, 1, Q("36.302122 mm")))
sketch12.setExpression("Constraints[18]", "Params.sketch12_width")
sketch12.setExpression("Constraints[19]", "Params.sketch12_width2")
sketch12.setExpression("Constraints[20]", "Params.sketch12_height")
sketch12.setExpression("Constraints[21]", "Params.sketch12_height2")
pad5 = body.newObject("PartDesign::Pad", "Pad004")
pad5.Profile = sketch12
pad5.setExpression("Length", "Params.pad5_length")
pad5.Reversed = True

# Sketch on XY plane
sketch13 = body.newObject("Sketcher::SketchObject", "Sketch012")
sketch13.AttachmentSupport = (doc.getObject("XY_Plane"), [""])
sketch13.MapMode = "FlatFace"
sketch13.AttachmentOffset = App.Placement(Vector(0, 0, 13), App.Rotation())
sketch13.addGeometry(Part.LineSegment(Vector(58.5, 37.5, 0), Vector(52.5, 37.5, 0)), False)
sketch13.addGeometry(Part.ArcOfCircle(Part.Circle(Vector(52.5, 31, 0), Vector(0, 0, 1), 6.5), math.radians(90), math.radians(270)), False)
sketch13.addGeometry(Part.LineSegment(Vector(52.5, 24.5, 0), Vector(58.5, 24.5, 0)), False)
sketch13.addGeometry(Part.ArcOfCircle(Part.Circle(Vector(58.5, 31, 0), Vector(0, 0, 1), 6.5), math.radians(-90), math.radians(90)), False)
sketch13.addGeometry(Part.LineSegment(Vector(58.5, 45.1, 0), Vector(52.5, 45.1, 0)), False)
sketch13.addGeometry(Part.ArcOfCircle(Part.Circle(Vector(52.5, 43.5, 0), Vector(0, 0, 1), 1.6), math.radians(90), math.radians(270)), False)
sketch13.addGeometry(Part.LineSegment(Vector(52.5, 41.9, 0), Vector(58.5, 41.9, 0)), False)
sketch13.addGeometry(Part.ArcOfCircle(Part.Circle(Vector(58.5, 43.5, 0), Vector(0, 0, 1), 1.6), math.radians(-90), math.radians(90)), False)
sketch13.addGeometry(Part.LineSegment(Vector(58.5, 20.1, 0), Vector(52.5, 20.1, 0)), False)
sketch13.addGeometry(Part.ArcOfCircle(Part.Circle(Vector(52.5, 18.5, 0), Vector(0, 0, 1), 1.6), math.radians(90), math.radians(270)), False)
sketch13.addGeometry(Part.LineSegment(Vector(52.5, 16.9, 0), Vector(58.5, 16.9, 0)), False)
sketch13.addGeometry(Part.ArcOfCircle(Part.Circle(Vector(58.5, 18.5, 0), Vector(0, 0, 1), 1.6), math.radians(-90), math.radians(90)), False)
sketch13.addConstraint(Sketcher.Constraint("Tangent", 0, 2, 1, 1))
sketch13.addConstraint(Sketcher.Constraint("Tangent", 1, 2, 2, 1))
sketch13.addConstraint(Sketcher.Constraint("Tangent", 2, 2, 3, 1))
sketch13.addConstraint(Sketcher.Constraint("Tangent", 3, 2, 0, 1))
sketch13.addConstraint(Sketcher.Constraint("Tangent", 4, 2, 5, 1))
sketch13.addConstraint(Sketcher.Constraint("Tangent", 5, 2, 6, 1))
sketch13.addConstraint(Sketcher.Constraint("Tangent", 6, 2, 7, 1))
sketch13.addConstraint(Sketcher.Constraint("Tangent", 7, 2, 4, 1))
sketch13.addConstraint(Sketcher.Constraint("Tangent", 8, 2, 9, 1))
sketch13.addConstraint(Sketcher.Constraint("Tangent", 9, 2, 10, 1))
sketch13.addConstraint(Sketcher.Constraint("Tangent", 10, 2, 11, 1))
sketch13.addConstraint(Sketcher.Constraint("Tangent", 11, 2, 8, 1))
sketch13.addConstraint(Sketcher.Constraint("Horizontal", 0))
sketch13.addConstraint(Sketcher.Constraint("Horizontal", 2))
sketch13.addConstraint(Sketcher.Constraint("Horizontal", 4))
sketch13.addConstraint(Sketcher.Constraint("Horizontal", 6))
sketch13.addConstraint(Sketcher.Constraint("Horizontal", 8))
sketch13.addConstraint(Sketcher.Constraint("Horizontal", 10))
sketch13.addConstraint(Sketcher.Constraint("Equal", 7, 9))
sketch13.addConstraint(Sketcher.Constraint("Vertical", 1, 3, 5, 3))
sketch13.addConstraint(Sketcher.Constraint("Vertical", 3, 3, 7, 3))
sketch13.addConstraint(Sketcher.Constraint("Vertical", 5, 3, 9, 3))
sketch13.addConstraint(Sketcher.Constraint("Vertical", 7, 3, 11, 3))
sketch13.addConstraint(Sketcher.Constraint("Radius", 1, Q("6.5 mm")))
sketch13.addConstraint(Sketcher.Constraint("Radius", 5, Q("1.6 mm")))
sketch13.addConstraint(Sketcher.Constraint("DistanceX", 0, 2, 0, 1, Q("6 mm")))
sketch13.addConstraint(Sketcher.Constraint("DistanceY", -1, 1, 1, 3, Q("31 mm")))
sketch13.addConstraint(Sketcher.Constraint("DistanceY", 9, 3, 5, 3, Q("25 mm")))
sketch13.addConstraint(Sketcher.Constraint("DistanceY", 0, 2, 5, 3, Q("6 mm")))
sketch13.addConstraint(Sketcher.Constraint("DistanceX", -1, 1, 1, 3, Q("52.5 mm")))
sketch13.setExpression("Constraints[23]", "Params.sketch13_radius")
sketch13.setExpression("Constraints[24]", "Params.sketch13_radius2")
sketch13.setExpression("Constraints[25]", "Params.sketch13_width")
pocket8 = body.newObject("PartDesign::Pocket", "Pocket007")
pocket8.Profile = sketch13
pocket8.Type = "ThroughAll"

# Sketch on XY plane
sketch14 = body.newObject("Sketcher::SketchObject", "Sketch013")
sketch14.AttachmentSupport = (doc.getObject("XY_Plane"), [""])
sketch14.MapMode = "FlatFace"
sketch14.AttachmentOffset = App.Placement(Vector(0, 0, 31.5), App.Rotation())
sketch14.addGeometry(Part.LineSegment(Vector(0, 10, 0), Vector(0, 0, 0)), False)
sketch14.addGeometry(Part.LineSegment(Vector(0, 0, 0), Vector(49, 0, 0)), False)
sketch14.addGeometry(Part.LineSegment(Vector(49, 0, 0), Vector(49, 10, 0)), False)
sketch14.addGeometry(Part.LineSegment(Vector(49, 10, 0), Vector(0, 10, 0)), False)
sketch14.addConstraint(Sketcher.Constraint("Coincident", 0, 2, 1, 1))
sketch14.addConstraint(Sketcher.Constraint("Coincident", 1, 2, 2, 1))
sketch14.addConstraint(Sketcher.Constraint("Coincident", 2, 2, 3, 1))
sketch14.addConstraint(Sketcher.Constraint("Coincident", 3, 2, 0, 1))
sketch14.addConstraint(Sketcher.Constraint("Vertical", 0))
sketch14.addConstraint(Sketcher.Constraint("Horizontal", 1))
sketch14.addConstraint(Sketcher.Constraint("Vertical", 2))
sketch14.addConstraint(Sketcher.Constraint("Horizontal", 3))
sketch14.addConstraint(Sketcher.Constraint("Coincident", 0, 2, -1, 1))
sketch14.addConstraint(Sketcher.Constraint("DistanceX", 1, 1, 1, 2, Q("49 mm")))
sketch14.addConstraint(Sketcher.Constraint("DistanceY", 0, 2, 0, 1, Q("10 mm")))
sketch14.setExpression("Constraints[9]", "Params.sketch14_width")
sketch14.setExpression("Constraints[10]", "Params.sketch14_height")
pad6 = body.newObject("PartDesign::Pad", "Pad005")
pad6.Profile = sketch14
pad6.setExpression("Length", "Params.pad6_length")

# Sketch on YZ plane
sketch15 = body.newObject("Sketcher::SketchObject", "Sketch014")
sketch15.AttachmentSupport = (doc.getObject("YZ_Plane"), [""])
sketch15.MapMode = "FlatFace"
sketch15.addGeometry(Part.Circle(Vector(5, 36.5, 0), Vector(0, 0, 1), 1.6), False)
sketch15.addConstraint(Sketcher.Constraint("Diameter", 0, Q("3.2 mm")))
sketch15.addConstraint(Sketcher.Constraint("DistanceX", -1, 1, 0, 3, Q("5 mm")))
sketch15.addConstraint(Sketcher.Constraint("DistanceY", -1, 1, 0, 3, Q("36.5 mm")))
sketch15.setExpression("Constraints[0]", "Params.sketch15_diameter")
pocket9 = body.newObject("PartDesign::Pocket", "Pocket008")
pocket9.Profile = sketch15
pocket9.Type = "ThroughAll"
pocket9.Reversed = True

# Sketch on XZ plane
sketch16 = body.newObject("Sketcher::SketchObject", "Sketch015")
sketch16.AttachmentSupport = (doc.getObject("XZ_Plane"), [""])
sketch16.MapMode = "FlatFace"
sketch16.AttachmentOffset = App.Placement(Vector(0, 0, -28), App.Rotation())
sketch16.addGeometry(Part.LineSegment(Vector(12, 24, 0), Vector(12, 32, 0)), False)
sketch16.addGeometry(Part.LineSegment(Vector(12, 32, 0), Vector(47, 32, 0)), False)
sketch16.addGeometry(Part.LineSegment(Vector(47, 32, 0), Vector(47, 24, 0)), False)
sketch16.addGeometry(Part.LineSegment(Vector(47, 24, 0), Vector(12, 24, 0)), False)
sketch16.addConstraint(Sketcher.Constraint("Coincident", 0, 2, 1, 1))
sketch16.addConstraint(Sketcher.Constraint("Coincident", 1, 2, 2, 1))
sketch16.addConstraint(Sketcher.Constraint("Coincident", 2, 2, 3, 1))
sketch16.addConstraint(Sketcher.Constraint("Coincident", 3, 2, 0, 1))
sketch16.addConstraint(Sketcher.Constraint("Vertical", 0))
sketch16.addConstraint(Sketcher.Constraint("Horizontal", 1))
sketch16.addConstraint(Sketcher.Constraint("Vertical", 2))
sketch16.addConstraint(Sketcher.Constraint("Horizontal", 3))
sketch16.addConstraint(Sketcher.Constraint("DistanceX", 1, 1, 1, 2, Q("35 mm")))
sketch16.addConstraint(Sketcher.Constraint("DistanceY", 0, 1, 0, 2, Q("8 mm")))
sketch16.addConstraint(Sketcher.Constraint("DistanceX", -1, 1, 0, 2, Q("12 mm")))
sketch16.addConstraint(Sketcher.Constraint("DistanceY", -1, 1, 0, 2, Q("31.5 mm")))
sketch16.setExpression("Constraints[8]", "Params.sketch16_width")
sketch16.setExpression("Constraints[9]", "Params.sketch16_height")
pad7 = body.newObject("PartDesign::Pad", "Pad006")
pad7.Profile = sketch16
pad7.setExpression("Length", "Params.pad7_length")
pad7.Reversed = True

# Sketch on XZ plane
sketch17 = body.newObject("Sketcher::SketchObject", "Sketch016")
sketch17.AttachmentSupport = (doc.getObject("XZ_Plane"), [""])
sketch17.MapMode = "FlatFace"
sketch17.AttachmentOffset = App.Placement(Vector(0, 0, -48), App.Rotation())
sketch17.addGeometry(Part.Circle(Vector(16, 27.5, 0), Vector(0, 0, 1), 1.4), False)
sketch17.addGeometry(Part.Circle(Vector(16, 4, 0), Vector(0, 0, 1), 1.4), False)
sketch17.addGeometry(Part.Circle(Vector(22, 27.5, 0), Vector(0, 0, 1), 1.4), False)
sketch17.addGeometry(Part.Circle(Vector(22, 4, 0), Vector(0, 0, 1), 1.4), False)
sketch17.addConstraint(Sketcher.Constraint("Equal", 0, 1))
sketch17.addConstraint(Sketcher.Constraint("Equal", 1, 2))
sketch17.addConstraint(Sketcher.Constraint("Equal", 2, 3))
sketch17.addConstraint(Sketcher.Constraint("Horizontal", 0, 3, 2, 3))
sketch17.addConstraint(Sketcher.Constraint("Horizontal", 1, 3, 3, 3))
sketch17.addConstraint(Sketcher.Constraint("Vertical", 0, 3, 1, 3))
sketch17.addConstraint(Sketcher.Constraint("Vertical", 2, 3, 3, 3))
sketch17.addConstraint(Sketcher.Constraint("Diameter", 0, Q("2.9 mm")))
sketch17.addConstraint(Sketcher.Constraint("DistanceX", -1, 1, 0, 3, Q("16 mm")))
sketch17.addConstraint(Sketcher.Constraint("DistanceY", -1, 1, 1, 3, Q("4 mm")))
sketch17.addConstraint(Sketcher.Constraint("DistanceX", -1, 1, 2, 3, Q("22 mm")))
sketch17.addConstraint(Sketcher.Constraint("DistanceY", -1, 1, 0, 3, Q("27.5 mm")))
sketch17.setExpression("Constraints[7]", "Params.sketch17_diameter")
pocket10 = body.newObject("PartDesign::Pocket", "Pocket009")
pocket10.Profile = sketch17
pocket10.Type = "ThroughAll"
pocket10.Reversed = True
doc.recompute()

fillet = body.newObject("PartDesign::Fillet", "Fillet")
fillet.Base = (pocket10, edges_at(pocket10, [(24.5, 10, 41.5), (24.5, 10, -10)]))
fillet.setExpression("Radius", "Params.fillet_radius")

doc.recompute()
